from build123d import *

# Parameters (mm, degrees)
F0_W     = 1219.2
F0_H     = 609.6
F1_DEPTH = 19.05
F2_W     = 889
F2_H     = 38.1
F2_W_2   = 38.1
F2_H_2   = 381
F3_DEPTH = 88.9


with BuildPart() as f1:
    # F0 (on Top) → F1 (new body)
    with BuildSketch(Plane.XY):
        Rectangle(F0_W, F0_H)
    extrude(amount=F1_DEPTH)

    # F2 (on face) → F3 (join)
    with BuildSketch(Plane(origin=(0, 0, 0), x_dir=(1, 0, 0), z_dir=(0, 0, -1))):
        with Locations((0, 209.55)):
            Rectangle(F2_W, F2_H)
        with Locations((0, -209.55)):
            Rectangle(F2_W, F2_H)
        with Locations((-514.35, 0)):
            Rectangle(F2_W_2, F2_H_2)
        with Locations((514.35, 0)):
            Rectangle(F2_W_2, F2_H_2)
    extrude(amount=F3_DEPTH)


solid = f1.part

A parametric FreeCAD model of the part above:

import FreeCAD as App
import Part
import Sketcher
Q = App.Units.Quantity

doc = App.newDocument("Part")
body = doc.addObject("PartDesign::Body", "Body")

sketch1 = body.newObject("Sketcher::SketchObject", "Sketch")
sketch1.AttachmentSupport = (doc.getObject("XY_Plane"), [""])
sketch1.MapMode = "FlatFace"
sketch1.addGeometry([
    Part.LineSegment(App.Vector(-610, 305, 0), App.Vector(-610, -305, 0)),
    Part.LineSegment(App.Vector(-610, -305, 0), App.Vector(610, -305, 0)),
    Part.LineSegment(App.Vector(610, -305, 0), App.Vector(610, 305, 0)),
    Part.LineSegment(App.Vector(610, 305, 0), App.Vector(-610, 305, 0)),
], False)
sketch1.addConstraint([
    Sketcher.Constraint("Coincident", 0, 2, 1, 1),
    Sketcher.Constraint("Coincident", 1, 2, 2, 1),
    Sketcher.Constraint("Coincident", 2, 2, 3, 1),
    Sketcher.Constraint("Coincident", 3, 2, 0, 1),
    Sketcher.Constraint("Vertical", 0),
    Sketcher.Constraint("Horizontal", 1),
    Sketcher.Constraint("Vertical", 2),
    Sketcher.Constraint("Horizontal", 3),
    Sketcher.Constraint("Symmetric", 0, 2, 2, 2, -1, 1),
    Sketcher.Constraint("DistanceX", 1, 1, 1, 2, Q("48 in")),
    Sketcher.Constraint("DistanceY", 0, 2, 0, 1, Q("24 in")),
])
pad1 = body.newObject("PartDesign::Pad", "Pad")
pad1.Profile = sketch1
pad1.Length = Q("0.75 in")

sketch2 = body.newObject("Sketcher::SketchObject", "Sketch001")
sketch2.AttachmentSupport = (doc.getObject("XY_Plane"), [""])
sketch2.MapMode = "FlatFace"
sketch2.addGeometry([
    Part.LineSegment(App.Vector(-444, -229, 0), App.Vector(-444, -190, 0)),
    Part.LineSegment(App.Vector(-444, -190, 0), App.Vector(444, -190, 0)),
    Part.LineSegment(App.Vector(444, -190, 0), App.Vector(444, -229, 0)),
    Part.LineSegment(App.Vector(444, -229, 0), App.Vector(-444, -229, 0)),
    Part.LineSegment(App.Vector(-444, 190, 0), App.Vector(-444, 229, 0)),
    Part.LineSegment(App.Vector(-444, 229, 0), App.Vector(444, 229, 0)),
    Part.LineSegment(App.Vector(444, 229, 0), App.Vector(444, 190, 0)),
    Part.LineSegment(App.Vector(444, 190, 0), App.Vector(-444, 190, 0)),
    Part.LineSegment(App.Vector(-533, -190, 0), App.Vector(-533, 190, 0)),
    Part.LineSegment(App.Vector(-533, 190, 0), App.Vector(-495, 190, 0)),
    Part.LineSegment(App.Vector(-495, 190, 0), App.Vector(-495, -190, 0)),
    Part.LineSegment(App.Vector(-495, -190, 0), App.Vector(-533, -190, 0)),
    Part.LineSegment(App.Vector(495, -190, 0), App.Vector(495, 190, 0)),
    Part.LineSegment(App.Vector(495, 190, 0), App.Vector(533, 190, 0)),
    Part.LineSegment(App.Vector(533, 190, 0), App.Vector(533, -190, 0)),
    Part.LineSegment(App.Vector(533, -190, 0), App.Vector(495, -190, 0)),
], False)
sketch2.addConstraint([
    Sketcher.Constraint("Coincident", 0, 2, 1, 1),
    Sketcher.Constraint("Coincident", 1, 2, 2, 1),
    Sketcher.Constraint("Coincident", 2, 2, 3, 1),
    Sketcher.Constraint("Coincident", 3, 2, 0, 1),
    Sketcher.Constraint("Coincident", 4, 2, 5, 1),
    Sketcher.Constraint("Coincident", 5, 2, 6, 1),
    Sketcher.Constraint("Coincident", 6, 2, 7, 1),
    Sketcher.Constraint("Coincident", 7, 2, 4, 1),
    Sketcher.Constraint("Coincident", 8, 2, 9, 1),
    Sketcher.Constraint("Coincident", 9, 2, 10, 1),
    Sketcher.Constraint("Coincident", 10, 2, 11, 1),
    Sketcher.Constraint("Coincident", 11, 2, 8, 1),
    Sketcher.Constraint("Coincident", 12, 2, 13, 1),
    Sketcher.Constraint("Coincident", 13, 2, 14, 1),
    Sketcher.Constraint("Coincident", 14, 2, 15, 1),
    Sketcher.Constraint("Coincident", 15, 2, 12, 1),
    Sketcher.Constraint("Vertical", 0),
    Sketcher.Constraint("Horizontal", 1),
    Sketcher.Constraint("Vertical", 2),
    Sketcher.Constraint("Horizontal", 3),
    Sketcher.Constraint("Vertical", 4),
    Sketcher.Constraint("Horizontal", 5),
    Sketcher.Constraint("Vertical", 6),
    Sketcher.Constraint("Horizontal", 7),
    Sketcher.Constraint("Vertical", 8),
    Sketcher.Constraint("Horizontal", 9),
    Sketcher.Constraint("Vertical", 10),
    Sketcher.Constraint("Horizontal", 11),
    Sketcher.Constraint("Vertical", 12),
    Sketcher.Constraint("Horizontal", 13),
    Sketcher.Constraint("Vertical", 14),
    Sketcher.Constraint("Horizontal", 15),
    Sketcher.Constraint("Symmetric", 2, 2, 4, 2, -1, 1),
    Sketcher.Constraint("Symmetric", 0, 2, 6, 2, -1, 1),
    Sketcher.Constraint("Symmetric", 10, 2, 12, 2, -1, 1),
    Sketcher.Constraint("Symmetric", 8, 2, 14, 2, -1, 1),
    Sketcher.Constraint("Horizontal", 7, 2, 8, 2),
    Sketcher.Constraint("Horizontal", 1, 2, 10, 2),
    Sketcher.Constraint("Vertical", 3, 2, 4, 2),
    Sketcher.Constraint("Equal", 15, 0),
    Sketcher.Constraint("DistanceX", 1, 1, 1, 2, Q("35 in")),
    Sketcher.Constraint("DistanceY", 8, 1, 8, 2, Q("15 in")),
    Sketcher.Constraint("DistanceX", 9, 1, 9, 2, Q("1.5 in")),
    Sketcher.Constraint("DistanceX", 8, 2, -1, 1, Q("21 in")),
])
pad2 = body.newObject("PartDesign::Pad", "Pad001")
pad2.Profile = sketch2
pad2.Length = Q("3.5 in")
pad2.Reversed = True

doc.recompute()
